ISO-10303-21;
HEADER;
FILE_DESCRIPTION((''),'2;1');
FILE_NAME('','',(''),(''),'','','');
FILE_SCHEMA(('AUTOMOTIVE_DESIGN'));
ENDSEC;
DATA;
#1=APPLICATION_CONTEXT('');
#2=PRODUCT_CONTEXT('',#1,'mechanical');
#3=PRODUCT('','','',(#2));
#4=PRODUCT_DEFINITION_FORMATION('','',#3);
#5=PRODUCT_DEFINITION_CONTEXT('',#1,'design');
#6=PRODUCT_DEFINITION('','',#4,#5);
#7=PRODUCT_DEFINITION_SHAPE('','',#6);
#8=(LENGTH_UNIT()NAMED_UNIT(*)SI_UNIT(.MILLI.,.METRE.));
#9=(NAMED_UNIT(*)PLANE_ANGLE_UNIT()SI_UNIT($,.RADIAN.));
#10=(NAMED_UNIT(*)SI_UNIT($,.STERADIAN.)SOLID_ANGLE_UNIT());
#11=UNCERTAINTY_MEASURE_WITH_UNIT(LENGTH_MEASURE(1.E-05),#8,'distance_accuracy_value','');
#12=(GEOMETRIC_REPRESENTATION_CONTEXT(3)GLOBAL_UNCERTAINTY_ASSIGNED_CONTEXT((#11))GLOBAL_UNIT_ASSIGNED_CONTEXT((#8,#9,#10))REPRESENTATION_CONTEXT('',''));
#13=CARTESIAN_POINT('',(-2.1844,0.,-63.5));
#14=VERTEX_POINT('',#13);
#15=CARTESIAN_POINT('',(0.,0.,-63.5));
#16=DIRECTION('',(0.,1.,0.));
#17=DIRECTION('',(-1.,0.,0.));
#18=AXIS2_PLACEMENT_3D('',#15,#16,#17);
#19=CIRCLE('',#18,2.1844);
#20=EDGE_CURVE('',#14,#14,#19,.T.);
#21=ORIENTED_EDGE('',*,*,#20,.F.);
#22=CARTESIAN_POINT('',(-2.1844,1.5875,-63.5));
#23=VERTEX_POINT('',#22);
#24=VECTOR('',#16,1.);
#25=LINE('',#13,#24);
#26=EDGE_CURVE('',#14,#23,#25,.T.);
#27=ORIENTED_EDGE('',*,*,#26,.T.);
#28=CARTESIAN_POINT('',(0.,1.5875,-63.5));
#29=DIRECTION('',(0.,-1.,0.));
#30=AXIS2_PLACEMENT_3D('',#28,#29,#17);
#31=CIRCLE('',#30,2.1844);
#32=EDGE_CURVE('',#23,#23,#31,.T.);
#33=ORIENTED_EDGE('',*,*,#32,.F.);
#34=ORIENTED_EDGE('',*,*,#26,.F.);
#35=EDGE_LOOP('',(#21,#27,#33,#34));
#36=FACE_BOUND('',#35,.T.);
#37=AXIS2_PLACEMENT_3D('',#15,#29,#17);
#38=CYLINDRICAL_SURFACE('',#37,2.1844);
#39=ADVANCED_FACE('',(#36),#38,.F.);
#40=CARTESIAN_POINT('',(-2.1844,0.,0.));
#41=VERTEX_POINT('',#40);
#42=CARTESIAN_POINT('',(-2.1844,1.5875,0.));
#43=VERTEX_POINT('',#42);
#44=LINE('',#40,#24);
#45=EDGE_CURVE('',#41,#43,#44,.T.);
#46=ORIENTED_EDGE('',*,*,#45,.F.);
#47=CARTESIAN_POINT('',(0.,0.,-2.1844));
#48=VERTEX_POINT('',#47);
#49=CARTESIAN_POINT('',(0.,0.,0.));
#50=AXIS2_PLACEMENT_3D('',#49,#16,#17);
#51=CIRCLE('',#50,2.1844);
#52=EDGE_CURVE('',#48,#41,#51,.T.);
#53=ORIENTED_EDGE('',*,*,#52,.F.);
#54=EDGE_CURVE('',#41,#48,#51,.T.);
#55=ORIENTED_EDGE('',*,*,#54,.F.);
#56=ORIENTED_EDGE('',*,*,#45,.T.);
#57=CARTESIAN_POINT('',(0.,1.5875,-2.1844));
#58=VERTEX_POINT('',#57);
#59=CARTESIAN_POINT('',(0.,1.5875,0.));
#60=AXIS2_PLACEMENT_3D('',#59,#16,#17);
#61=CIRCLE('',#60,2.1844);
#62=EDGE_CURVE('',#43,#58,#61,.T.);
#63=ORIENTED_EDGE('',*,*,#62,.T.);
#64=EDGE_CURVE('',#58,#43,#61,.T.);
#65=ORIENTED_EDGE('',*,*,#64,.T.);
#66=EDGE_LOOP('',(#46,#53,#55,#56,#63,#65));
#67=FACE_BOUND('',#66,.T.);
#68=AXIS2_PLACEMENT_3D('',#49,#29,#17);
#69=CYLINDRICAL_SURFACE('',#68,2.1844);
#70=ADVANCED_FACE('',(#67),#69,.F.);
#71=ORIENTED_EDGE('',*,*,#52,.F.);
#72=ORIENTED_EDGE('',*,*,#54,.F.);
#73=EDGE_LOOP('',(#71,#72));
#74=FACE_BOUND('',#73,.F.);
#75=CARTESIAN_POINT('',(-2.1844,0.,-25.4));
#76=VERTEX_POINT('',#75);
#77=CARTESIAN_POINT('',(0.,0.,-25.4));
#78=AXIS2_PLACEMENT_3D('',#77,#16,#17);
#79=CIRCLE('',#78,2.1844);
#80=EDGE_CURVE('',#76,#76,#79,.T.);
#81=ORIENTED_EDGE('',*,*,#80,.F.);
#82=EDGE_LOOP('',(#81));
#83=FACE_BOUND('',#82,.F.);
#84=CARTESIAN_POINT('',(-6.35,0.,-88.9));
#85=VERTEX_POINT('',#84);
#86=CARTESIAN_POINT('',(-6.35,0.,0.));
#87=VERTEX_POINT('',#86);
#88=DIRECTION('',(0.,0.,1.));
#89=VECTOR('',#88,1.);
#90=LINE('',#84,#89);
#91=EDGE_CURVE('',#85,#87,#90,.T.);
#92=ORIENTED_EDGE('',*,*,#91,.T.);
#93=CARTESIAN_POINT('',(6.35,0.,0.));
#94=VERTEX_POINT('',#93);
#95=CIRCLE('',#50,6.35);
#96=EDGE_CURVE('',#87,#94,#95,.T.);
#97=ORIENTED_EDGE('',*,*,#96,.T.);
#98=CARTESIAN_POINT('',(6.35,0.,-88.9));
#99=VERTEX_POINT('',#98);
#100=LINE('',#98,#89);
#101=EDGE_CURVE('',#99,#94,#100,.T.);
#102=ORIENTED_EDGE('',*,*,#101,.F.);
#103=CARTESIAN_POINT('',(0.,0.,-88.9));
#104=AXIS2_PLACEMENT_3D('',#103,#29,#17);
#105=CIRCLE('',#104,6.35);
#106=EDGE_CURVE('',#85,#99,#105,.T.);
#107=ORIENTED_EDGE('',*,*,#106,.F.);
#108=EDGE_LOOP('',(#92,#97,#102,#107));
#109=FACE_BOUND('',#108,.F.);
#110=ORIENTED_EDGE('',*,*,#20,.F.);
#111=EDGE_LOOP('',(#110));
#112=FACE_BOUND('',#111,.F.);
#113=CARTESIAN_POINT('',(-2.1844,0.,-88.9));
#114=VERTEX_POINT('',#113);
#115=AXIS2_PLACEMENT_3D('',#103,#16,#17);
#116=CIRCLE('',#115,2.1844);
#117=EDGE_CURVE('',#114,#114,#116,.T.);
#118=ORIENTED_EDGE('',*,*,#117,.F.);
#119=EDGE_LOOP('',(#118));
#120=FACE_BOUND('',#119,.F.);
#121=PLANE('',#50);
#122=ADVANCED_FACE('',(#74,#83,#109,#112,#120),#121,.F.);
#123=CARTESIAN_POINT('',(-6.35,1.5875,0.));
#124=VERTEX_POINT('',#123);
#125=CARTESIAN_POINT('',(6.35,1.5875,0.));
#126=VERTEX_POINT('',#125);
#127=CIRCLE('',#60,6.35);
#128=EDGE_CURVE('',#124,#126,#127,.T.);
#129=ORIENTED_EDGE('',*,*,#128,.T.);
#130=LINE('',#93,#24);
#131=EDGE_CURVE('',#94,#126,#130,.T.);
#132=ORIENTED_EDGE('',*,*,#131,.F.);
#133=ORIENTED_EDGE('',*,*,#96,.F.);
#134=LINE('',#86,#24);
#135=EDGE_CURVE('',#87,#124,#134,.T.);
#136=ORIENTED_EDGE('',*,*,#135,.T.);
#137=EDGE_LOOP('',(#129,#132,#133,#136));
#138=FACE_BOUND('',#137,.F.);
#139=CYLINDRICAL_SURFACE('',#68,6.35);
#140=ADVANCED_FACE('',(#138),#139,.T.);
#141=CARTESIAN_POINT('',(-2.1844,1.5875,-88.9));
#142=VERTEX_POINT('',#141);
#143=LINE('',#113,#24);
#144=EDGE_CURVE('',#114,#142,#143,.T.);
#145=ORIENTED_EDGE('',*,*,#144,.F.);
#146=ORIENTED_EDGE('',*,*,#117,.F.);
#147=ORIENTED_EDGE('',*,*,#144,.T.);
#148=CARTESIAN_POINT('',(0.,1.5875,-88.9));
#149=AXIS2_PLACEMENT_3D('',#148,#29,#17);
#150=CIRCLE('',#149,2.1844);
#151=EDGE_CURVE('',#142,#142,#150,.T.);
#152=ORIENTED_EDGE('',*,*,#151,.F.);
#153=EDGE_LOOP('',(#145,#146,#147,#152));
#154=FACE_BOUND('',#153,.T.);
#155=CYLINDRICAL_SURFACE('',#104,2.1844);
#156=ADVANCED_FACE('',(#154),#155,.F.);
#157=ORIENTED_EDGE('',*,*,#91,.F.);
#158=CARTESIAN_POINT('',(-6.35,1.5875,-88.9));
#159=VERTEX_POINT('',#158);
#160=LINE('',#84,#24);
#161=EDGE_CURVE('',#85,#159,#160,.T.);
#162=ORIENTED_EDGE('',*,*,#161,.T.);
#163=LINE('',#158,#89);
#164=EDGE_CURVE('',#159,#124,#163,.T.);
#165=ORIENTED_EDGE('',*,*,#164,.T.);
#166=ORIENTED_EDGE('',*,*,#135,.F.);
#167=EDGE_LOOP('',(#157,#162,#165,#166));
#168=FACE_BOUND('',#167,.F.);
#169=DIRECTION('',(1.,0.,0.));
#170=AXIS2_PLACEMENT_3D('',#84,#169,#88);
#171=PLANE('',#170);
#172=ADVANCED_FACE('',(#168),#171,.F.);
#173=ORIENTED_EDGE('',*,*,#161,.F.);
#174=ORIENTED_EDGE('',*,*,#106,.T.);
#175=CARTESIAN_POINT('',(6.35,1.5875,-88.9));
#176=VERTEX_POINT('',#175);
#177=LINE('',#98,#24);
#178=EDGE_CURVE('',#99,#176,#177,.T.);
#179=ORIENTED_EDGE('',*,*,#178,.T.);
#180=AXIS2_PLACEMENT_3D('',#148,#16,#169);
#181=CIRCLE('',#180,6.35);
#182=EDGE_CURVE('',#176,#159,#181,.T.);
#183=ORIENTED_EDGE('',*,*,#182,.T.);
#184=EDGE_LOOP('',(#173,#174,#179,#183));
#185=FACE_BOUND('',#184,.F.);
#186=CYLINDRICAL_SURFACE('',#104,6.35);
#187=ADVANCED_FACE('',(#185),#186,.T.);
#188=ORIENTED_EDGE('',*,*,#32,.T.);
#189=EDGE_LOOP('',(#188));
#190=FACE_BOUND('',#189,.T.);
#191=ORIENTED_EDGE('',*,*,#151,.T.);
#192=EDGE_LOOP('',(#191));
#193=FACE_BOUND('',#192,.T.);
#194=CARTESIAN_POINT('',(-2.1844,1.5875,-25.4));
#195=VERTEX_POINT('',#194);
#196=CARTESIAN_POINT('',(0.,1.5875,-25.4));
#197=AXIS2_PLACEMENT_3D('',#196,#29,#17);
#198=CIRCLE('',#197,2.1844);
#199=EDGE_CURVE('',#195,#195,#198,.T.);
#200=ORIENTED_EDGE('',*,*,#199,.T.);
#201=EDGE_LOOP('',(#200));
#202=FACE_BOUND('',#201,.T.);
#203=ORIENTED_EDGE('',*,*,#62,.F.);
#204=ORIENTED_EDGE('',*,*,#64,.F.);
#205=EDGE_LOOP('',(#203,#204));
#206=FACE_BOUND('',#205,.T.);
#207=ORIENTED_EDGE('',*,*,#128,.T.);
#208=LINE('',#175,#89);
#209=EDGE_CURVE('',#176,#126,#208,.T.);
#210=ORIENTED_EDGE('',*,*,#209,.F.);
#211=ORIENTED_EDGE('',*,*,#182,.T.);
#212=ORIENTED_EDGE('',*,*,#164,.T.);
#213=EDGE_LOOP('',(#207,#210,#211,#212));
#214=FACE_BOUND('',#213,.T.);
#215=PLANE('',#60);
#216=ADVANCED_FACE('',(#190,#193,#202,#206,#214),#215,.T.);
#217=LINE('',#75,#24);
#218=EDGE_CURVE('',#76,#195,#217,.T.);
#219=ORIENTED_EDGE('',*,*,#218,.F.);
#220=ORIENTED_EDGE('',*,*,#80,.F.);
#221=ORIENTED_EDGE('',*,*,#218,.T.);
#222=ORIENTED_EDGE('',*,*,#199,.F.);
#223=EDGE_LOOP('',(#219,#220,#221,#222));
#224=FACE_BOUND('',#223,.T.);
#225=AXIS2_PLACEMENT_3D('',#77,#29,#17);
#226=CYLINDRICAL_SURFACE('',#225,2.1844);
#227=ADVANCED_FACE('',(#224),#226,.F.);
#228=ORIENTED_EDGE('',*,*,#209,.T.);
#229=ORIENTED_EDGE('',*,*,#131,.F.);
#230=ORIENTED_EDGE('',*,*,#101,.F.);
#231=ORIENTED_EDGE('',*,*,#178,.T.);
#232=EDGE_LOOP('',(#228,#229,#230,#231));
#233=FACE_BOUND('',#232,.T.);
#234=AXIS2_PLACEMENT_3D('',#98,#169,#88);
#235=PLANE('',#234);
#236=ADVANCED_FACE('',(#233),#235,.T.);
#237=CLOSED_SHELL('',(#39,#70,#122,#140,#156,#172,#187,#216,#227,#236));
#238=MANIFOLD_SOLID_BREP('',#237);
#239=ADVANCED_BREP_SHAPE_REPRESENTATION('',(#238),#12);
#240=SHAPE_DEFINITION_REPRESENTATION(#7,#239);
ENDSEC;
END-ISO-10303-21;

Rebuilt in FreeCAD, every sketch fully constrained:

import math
import FreeCAD as App
import Part
import Sketcher

V = App.Vector
Q = App.Units.Quantity

doc = App.newDocument("Part")
params = doc.addObject("Spreadsheet::Sheet", "Params")
for row, (alias, value) in enumerate([
    ("sketch1_radius", "0.25 in"),
    ("sketch1_diameter", "0.172 in"),
    ("pad1_length", "0.0625 in"),
], start=1):
    params.set(f"A{row}", alias)
    params.set(f"B{row}", "=" + value)
    params.setAlias(f"B{row}", alias)

body = doc.addObject("PartDesign::Body", "Body")

sketch1 = body.newObject("Sketcher::SketchObject", "Sketch")
sketch1.AttachmentSupport = (doc.getObject("XZ_Plane"), [""])
sketch1.MapMode = "FlatFace"
sketch1.addGeometry(Part.ArcOfCircle(Part.Circle(V(0, 0, 0), V(0, 0, 1), 6.35), math.radians(0), math.radians(180)), False)
sketch1.addGeometry(Part.LineSegment(V(6.35, 0, 0), V(6.35, -88.9, 0)), False)
sketch1.addGeometry(Part.ArcOfCircle(Part.Circle(V(0, -88.9, 0), V(0, 0, 1), 6.35), math.radians(180), math.radians(360)), False)
sketch1.addGeometry(Part.LineSegment(V(-6.35, -88.9, 0), V(-6.35, 0, 0)), False)
sketch1.addGeometry(Part.Circle(V(0, 0, 0), V(0, 0, 1), 2.1844), False)
sketch1.addGeometry(Part.Circle(V(0, -25.4, 0), V(0, 0, 1), 2.1844), False)
sketch1.addGeometry(Part.Circle(V(0, -63.5, 0), V(0, 0, 1), 2.1844), False)
sketch1.addGeometry(Part.Circle(V(0, -88.9, 0), V(0, 0, 1), 2.1844), False)
sketch1.addConstraint(Sketcher.Constraint("Tangent", 0, 1, 1, 1))
sketch1.addConstraint(Sketcher.Constraint("Tangent", 1, 2, 2, 2))
sketch1.addConstraint(Sketcher.Constraint("Tangent", 2, 1, 3, 1))
sketch1.addConstraint(Sketcher.Constraint("Tangent", 3, 2, 0, 2))
sketch1.addConstraint(Sketcher.Constraint("Vertical", 1))
sketch1.addConstraint(Sketcher.Constraint("Vertical", 3))
sketch1.addConstraint(Sketcher.Constraint("Coincident", 0, 3, -1, 1))
sketch1.addConstraint(Sketcher.Constraint("Coincident", 4, 3, -1, 1))
sketch1.addConstraint(Sketcher.Constraint("Coincident", 7, 3, 2, 3))
sketch1.addConstraint(Sketcher.Constraint("Equal", 4, 5))
sketch1.addConstraint(Sketcher.Constraint("Equal", 5, 6))
sketch1.addConstraint(Sketcher.Constraint("Equal", 6, 7))
sketch1.addConstraint(Sketcher.Constraint("PointOnObject", 5, 3, -2))
sketch1.addConstraint(Sketcher.Constraint("PointOnObject", 6, 3, -2))
sketch1.addConstraint(Sketcher.Constraint("Radius", 0, Q("0.25 in")))
sketch1.addConstraint(Sketcher.Constraint("Diameter", 4, Q("0.172 in")))
sketch1.addConstraint(Sketcher.Constraint("DistanceY", 5, 3, -1, 1, Q("1 in")))
sketch1.addConstraint(Sketcher.Constraint("DistanceY", 2, 3, 6, 3, Q("1 in")))
sketch1.addConstraint(Sketcher.Constraint("DistanceY", 6, 3, 5, 3, Q("1.5 in")))
sketch1.setExpression("Constraints[14]", "Params.sketch1_radius")
sketch1.setExpression("Constraints[15]", "Params.sketch1_diameter")
pad1 = body.newObject("PartDesign::Pad", "Pad")
pad1.Profile = sketch1
pad1.setExpression("Length", "Params.pad1_length")
pad1.Reversed = True

doc.recompute()
